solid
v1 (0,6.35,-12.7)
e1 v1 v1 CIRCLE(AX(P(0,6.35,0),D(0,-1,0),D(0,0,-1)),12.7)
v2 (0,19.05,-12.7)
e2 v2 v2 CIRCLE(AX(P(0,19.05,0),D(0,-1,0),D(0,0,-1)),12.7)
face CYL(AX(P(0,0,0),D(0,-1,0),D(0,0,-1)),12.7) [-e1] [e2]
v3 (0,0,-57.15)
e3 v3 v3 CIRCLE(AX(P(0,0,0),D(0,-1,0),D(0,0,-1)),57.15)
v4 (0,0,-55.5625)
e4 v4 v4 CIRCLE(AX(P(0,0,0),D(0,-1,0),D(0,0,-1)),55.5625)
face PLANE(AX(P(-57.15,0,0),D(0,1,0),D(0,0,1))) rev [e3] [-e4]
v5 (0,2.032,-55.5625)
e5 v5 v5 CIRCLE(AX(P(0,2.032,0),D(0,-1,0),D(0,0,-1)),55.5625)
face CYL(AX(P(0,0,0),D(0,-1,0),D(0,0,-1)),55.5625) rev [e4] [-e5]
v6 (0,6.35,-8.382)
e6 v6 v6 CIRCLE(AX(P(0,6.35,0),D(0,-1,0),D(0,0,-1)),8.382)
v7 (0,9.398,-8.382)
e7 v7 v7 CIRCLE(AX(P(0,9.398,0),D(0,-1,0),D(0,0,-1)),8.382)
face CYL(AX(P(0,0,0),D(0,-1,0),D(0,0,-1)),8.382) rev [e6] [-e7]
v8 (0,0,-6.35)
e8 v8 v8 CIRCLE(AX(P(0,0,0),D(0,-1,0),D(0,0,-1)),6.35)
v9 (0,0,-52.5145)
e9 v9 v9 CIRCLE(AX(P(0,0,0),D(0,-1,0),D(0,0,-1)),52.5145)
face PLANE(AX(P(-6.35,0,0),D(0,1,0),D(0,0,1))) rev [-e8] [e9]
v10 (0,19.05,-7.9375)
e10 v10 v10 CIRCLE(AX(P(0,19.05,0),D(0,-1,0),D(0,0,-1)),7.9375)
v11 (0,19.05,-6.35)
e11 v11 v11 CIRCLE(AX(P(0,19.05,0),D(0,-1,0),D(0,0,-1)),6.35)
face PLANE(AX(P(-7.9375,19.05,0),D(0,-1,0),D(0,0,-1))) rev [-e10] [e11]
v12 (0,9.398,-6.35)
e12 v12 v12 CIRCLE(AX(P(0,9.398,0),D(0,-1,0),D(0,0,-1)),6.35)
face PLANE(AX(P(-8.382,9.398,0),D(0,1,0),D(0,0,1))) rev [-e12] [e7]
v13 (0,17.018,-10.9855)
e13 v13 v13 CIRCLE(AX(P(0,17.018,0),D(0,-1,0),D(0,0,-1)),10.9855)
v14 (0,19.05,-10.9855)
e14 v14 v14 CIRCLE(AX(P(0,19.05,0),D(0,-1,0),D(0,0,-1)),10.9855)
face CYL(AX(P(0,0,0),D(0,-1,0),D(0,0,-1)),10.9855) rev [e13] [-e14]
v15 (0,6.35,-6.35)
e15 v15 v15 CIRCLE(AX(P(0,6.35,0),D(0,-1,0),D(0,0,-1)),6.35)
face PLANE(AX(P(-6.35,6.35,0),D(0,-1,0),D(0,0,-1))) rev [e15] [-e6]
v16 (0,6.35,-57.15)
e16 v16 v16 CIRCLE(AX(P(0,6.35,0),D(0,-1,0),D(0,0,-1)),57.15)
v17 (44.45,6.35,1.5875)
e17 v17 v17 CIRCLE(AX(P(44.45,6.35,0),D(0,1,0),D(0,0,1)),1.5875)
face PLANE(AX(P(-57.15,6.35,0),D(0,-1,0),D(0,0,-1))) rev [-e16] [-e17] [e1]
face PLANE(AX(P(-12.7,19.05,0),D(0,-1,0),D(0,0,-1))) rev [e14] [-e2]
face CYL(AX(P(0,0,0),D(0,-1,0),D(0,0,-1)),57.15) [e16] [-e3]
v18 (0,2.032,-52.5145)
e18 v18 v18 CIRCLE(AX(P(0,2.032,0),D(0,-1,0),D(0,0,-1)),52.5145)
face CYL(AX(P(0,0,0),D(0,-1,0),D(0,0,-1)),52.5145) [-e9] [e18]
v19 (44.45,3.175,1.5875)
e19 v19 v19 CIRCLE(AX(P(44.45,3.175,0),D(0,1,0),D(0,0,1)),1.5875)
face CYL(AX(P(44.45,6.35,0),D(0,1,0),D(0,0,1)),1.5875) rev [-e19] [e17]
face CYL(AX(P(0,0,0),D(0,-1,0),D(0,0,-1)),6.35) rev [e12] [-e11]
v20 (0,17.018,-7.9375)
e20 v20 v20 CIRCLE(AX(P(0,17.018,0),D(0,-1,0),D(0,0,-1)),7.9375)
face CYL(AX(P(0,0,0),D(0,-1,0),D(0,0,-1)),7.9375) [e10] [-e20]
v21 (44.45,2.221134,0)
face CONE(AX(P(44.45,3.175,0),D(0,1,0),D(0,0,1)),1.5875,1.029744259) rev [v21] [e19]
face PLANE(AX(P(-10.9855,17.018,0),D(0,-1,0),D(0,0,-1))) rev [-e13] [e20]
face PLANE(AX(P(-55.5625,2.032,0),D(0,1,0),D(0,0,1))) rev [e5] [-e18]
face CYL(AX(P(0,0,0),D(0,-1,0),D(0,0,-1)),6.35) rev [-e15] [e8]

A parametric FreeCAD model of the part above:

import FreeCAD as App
import Part
import Sketcher
from FreeCAD import Vector
Q = App.Units.Quantity


def add_polygon(sketch, points):
    """Adds a closed chain of lines whose ends are joined by coincident constraints."""
    first, n = sketch.GeometryCount, len(points)
    for a, b in zip(points, points[1:] + points[:1]):
        sketch.addGeometry(Part.LineSegment(App.Vector(*a, 0), App.Vector(*b, 0)), False)
    for i in range(n):
        sketch.addConstraint(Sketcher.Constraint("Coincident", first + i, 2, first + (i + 1) % n, 1))

doc = App.newDocument("Part")
body = doc.addObject("PartDesign::Body", "Body")

sketch1 = body.newObject("Sketcher::SketchObject", "Sketch")
sketch1.AttachmentSupport = (doc.getObject("XY_Plane"), [""])
sketch1.MapMode = "FlatFace"
add_polygon(sketch1, [(-52.5145, 0), (-6.35, 0), (-6.35, 6.35), (-8.382, 6.35), (-8.382, 9.398), (-6.35, 9.398), (-6.35, 19.05), (-7.9375, 19.05), (-7.9375, 17.018), (-10.9855, 17.018), (-10.9855, 19.05), (-12.7, 19.05), (-12.7, 6.35), (-57.15, 6.35), (-57.15, 0), (-55.5625, 0), (-55.5625, 2.032), (-52.5145, 2.032)])
sketch1.addConstraint([
    Sketcher.Constraint("Horizontal", 0),
    Sketcher.Constraint("Vertical", 1),
    Sketcher.Constraint("Horizontal", 2),
    Sketcher.Constraint("Vertical", 3),
    Sketcher.Constraint("Horizontal", 4),
    Sketcher.Constraint("Vertical", 5),
    Sketcher.Constraint("Horizontal", 6),
    Sketcher.Constraint("Vertical", 7),
    Sketcher.Constraint("Horizontal", 8),
    Sketcher.Constraint("Vertical", 9),
    Sketcher.Constraint("Horizontal", 10),
    Sketcher.Constraint("Vertical", 11),
    Sketcher.Constraint("Horizontal", 12),
    Sketcher.Constraint("Vertical", 13),
    Sketcher.Constraint("Horizontal", 14),
    Sketcher.Constraint("Vertical", 15),
    Sketcher.Constraint("Horizontal", 16),
    Sketcher.Constraint("Vertical", 17),
    Sketcher.Constraint("PointOnObject", 0, 2, -1),
    Sketcher.Constraint("PointOnObject", 13, 2, -1),
    Sketcher.Constraint("Horizontal", 6, 2, 9, 2),
    Sketcher.Constraint("Horizontal", 2, 2, 11, 2),
    Sketcher.Constraint("Vertical", 1, 2, 4, 2),
    Sketcher.Constraint("Equal", 6, 14),
    Sketcher.Constraint("Equal", 8, 16),
    Sketcher.Constraint("Equal", 16, 3),
    Sketcher.Constraint("Equal", 4, 7),
    Sketcher.Constraint("Equal", 9, 15),
    Sketcher.Constraint("DistanceY", 11, 2, 11, 1, Q("0.5 in")),
    Sketcher.Constraint("DistanceX", 2, 2, 2, 1, Q("0.08 in")),
    Sketcher.Constraint("DistanceX", 8, 2, 8, 1, Q("0.12 in")),
    Sketcher.Constraint("DistanceX", 12, 2, 12, 1, Q("1.75 in")),
    Sketcher.Constraint("DistanceY", 1, 1, 1, 2, Q("0.25 in")),
    Sketcher.Constraint("DistanceX", 10, 2, -1, 1, Q("0.5 in")),
    Sketcher.Constraint("DistanceX", 6, 2, 6, 1, Q("0.0625 in")),
    Sketcher.Constraint("DistanceX", 0, 2, -1, 1, Q("0.25 in")),
])
revolution = body.newObject("PartDesign::Revolution", "Revolution")
revolution.Profile = sketch1
revolution.ReferenceAxis = (sketch1, ["V_Axis"])
revolution.Angle = 360

sketch2 = body.newObject("Sketcher::SketchObject", "Sketch001")
sketch2.AttachmentSupport = (doc.getObject("XZ_Plane"), [""])
sketch2.MapMode = "FlatFace"
sketch2.AttachmentOffset = App.Placement(Vector(0, 0, -0.25 * 25.4), App.Rotation())
sketch2.addGeometry(Part.Circle(Vector(44.45, 0, 0), Vector(0, 0, 1), 1.5875), False)
sketch2.addConstraint([
    Sketcher.Constraint("PointOnObject", 0, 3, -1),
    Sketcher.Constraint("Diameter", 0, Q("0.125 in")),
    Sketcher.Constraint("DistanceX", -1, 1, 0, 3, Q("1.75 in")),
])
doc.recompute()
hole = body.newObject("PartDesign::Hole", "Hole")
hole.Profile = sketch2
hole.ThreadType = "None"
hole.Diameter = Q("0.125 in")
hole.DepthType = "Dimension"
hole.Depth = Q("0.125 in")
hole.DrillPoint = "Angled"
hole.DrillPointAngle = 118
hole.Reversed = True

doc.recompute()
